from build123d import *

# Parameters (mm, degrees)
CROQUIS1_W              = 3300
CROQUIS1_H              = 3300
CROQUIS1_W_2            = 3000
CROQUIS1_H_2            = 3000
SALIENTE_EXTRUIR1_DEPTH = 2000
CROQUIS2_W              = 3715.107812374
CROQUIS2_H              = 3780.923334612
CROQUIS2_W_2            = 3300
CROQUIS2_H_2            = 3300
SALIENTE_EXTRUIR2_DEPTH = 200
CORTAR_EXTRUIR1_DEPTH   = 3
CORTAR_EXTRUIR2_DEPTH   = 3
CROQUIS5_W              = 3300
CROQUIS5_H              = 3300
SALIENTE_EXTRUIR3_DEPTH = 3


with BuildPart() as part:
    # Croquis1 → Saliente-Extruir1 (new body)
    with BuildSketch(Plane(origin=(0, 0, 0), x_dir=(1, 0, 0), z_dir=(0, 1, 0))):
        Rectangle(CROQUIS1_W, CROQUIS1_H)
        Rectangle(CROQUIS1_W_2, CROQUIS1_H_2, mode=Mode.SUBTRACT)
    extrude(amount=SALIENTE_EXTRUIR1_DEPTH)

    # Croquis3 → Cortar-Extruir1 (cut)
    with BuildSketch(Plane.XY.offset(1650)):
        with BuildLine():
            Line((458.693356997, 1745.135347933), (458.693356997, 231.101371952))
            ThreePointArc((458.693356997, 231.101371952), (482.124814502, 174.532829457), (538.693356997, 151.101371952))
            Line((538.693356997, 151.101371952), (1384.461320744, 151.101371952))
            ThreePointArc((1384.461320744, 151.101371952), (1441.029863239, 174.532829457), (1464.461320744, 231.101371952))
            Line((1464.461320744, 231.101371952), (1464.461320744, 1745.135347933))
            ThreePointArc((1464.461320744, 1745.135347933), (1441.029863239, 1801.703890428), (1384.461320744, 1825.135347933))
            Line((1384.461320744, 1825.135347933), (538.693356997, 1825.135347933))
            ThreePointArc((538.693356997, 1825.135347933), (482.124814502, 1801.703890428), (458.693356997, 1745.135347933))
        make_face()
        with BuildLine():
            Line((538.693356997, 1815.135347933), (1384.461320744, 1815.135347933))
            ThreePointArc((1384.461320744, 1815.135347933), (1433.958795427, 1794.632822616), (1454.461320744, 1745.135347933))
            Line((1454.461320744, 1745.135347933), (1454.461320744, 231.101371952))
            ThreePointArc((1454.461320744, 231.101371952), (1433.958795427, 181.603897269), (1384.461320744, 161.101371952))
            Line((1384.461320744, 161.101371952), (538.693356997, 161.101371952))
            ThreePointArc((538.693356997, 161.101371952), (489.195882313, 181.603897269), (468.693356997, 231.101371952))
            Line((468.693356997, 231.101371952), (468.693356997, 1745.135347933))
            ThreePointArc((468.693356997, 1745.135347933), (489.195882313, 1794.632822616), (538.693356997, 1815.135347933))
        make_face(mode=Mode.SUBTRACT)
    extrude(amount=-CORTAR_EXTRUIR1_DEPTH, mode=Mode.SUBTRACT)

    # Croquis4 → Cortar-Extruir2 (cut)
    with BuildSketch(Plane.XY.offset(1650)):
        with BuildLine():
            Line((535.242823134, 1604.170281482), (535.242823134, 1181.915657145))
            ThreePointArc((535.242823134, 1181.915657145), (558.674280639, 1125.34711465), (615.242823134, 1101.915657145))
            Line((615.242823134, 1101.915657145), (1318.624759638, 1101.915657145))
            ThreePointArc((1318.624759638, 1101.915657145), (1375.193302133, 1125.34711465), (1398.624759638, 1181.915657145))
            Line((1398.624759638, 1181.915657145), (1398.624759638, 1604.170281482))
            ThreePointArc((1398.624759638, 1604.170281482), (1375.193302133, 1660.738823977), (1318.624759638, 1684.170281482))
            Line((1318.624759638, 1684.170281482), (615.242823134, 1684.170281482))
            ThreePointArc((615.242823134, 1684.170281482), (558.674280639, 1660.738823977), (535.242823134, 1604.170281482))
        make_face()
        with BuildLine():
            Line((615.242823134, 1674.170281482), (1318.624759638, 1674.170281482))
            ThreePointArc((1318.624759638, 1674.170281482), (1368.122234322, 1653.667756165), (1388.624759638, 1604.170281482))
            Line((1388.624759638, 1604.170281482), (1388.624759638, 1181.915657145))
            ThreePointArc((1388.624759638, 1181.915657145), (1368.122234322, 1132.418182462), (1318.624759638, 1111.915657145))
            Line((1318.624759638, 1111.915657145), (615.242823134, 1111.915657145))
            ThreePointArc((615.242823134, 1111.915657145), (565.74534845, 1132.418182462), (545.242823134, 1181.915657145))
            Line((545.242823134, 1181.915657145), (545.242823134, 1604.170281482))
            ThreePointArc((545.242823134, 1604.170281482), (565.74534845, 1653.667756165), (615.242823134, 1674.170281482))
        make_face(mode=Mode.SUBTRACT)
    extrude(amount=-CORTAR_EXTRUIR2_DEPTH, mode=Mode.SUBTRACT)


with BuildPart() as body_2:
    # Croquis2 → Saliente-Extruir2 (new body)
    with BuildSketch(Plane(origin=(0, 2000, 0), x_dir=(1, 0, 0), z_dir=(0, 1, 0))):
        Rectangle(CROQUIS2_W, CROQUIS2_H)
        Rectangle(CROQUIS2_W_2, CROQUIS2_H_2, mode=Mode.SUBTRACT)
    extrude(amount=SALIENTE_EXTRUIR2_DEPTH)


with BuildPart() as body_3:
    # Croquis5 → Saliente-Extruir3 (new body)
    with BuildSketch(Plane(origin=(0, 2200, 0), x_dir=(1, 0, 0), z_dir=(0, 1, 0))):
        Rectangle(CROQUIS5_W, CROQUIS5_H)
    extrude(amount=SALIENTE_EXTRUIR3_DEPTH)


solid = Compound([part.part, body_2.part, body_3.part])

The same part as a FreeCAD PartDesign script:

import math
import FreeCAD as App
import Part
import Sketcher
from FreeCAD import Vector
Q = App.Units.Quantity

doc = App.newDocument("Part")
body = doc.addObject("PartDesign::Body", "Body")

# Sketch on XZ plane
sketch1 = doc.addObject("Sketcher::SketchObject", "Sketch")
body.addObject(sketch1)
sketch1.AttachmentSupport = (doc.XZ_Plane, [""])
sketch1.MapMode = "FlatFace"
sketch1.addGeometry(Part.LineSegment(Vector(-1650, -1650, 0), Vector(-1650, 1650, 0)), False)
sketch1.addGeometry(Part.LineSegment(Vector(-1650, 1650, 0), Vector(1650, 1650, 0)), False)
sketch1.addGeometry(Part.LineSegment(Vector(1650, 1650, 0), Vector(1650, -1650, 0)), False)
sketch1.addGeometry(Part.LineSegment(Vector(1650, -1650, 0), Vector(-1650, -1650, 0)), False)
sketch1.addGeometry(Part.LineSegment(Vector(1500, 1500, 0), Vector(-1500, 1500, 0)), False)
sketch1.addGeometry(Part.LineSegment(Vector(-1500, 1500, 0), Vector(-1500, -1500, 0)), False)
sketch1.addGeometry(Part.LineSegment(Vector(-1500, -1500, 0), Vector(1500, -1500, 0)), False)
sketch1.addGeometry(Part.LineSegment(Vector(1500, -1500, 0), Vector(1500, 1500, 0)), False)
sketch1.addConstraint(Sketcher.Constraint("Coincident", 0, 2, 1, 1))
sketch1.addConstraint(Sketcher.Constraint("Coincident", 1, 2, 2, 1))
sketch1.addConstraint(Sketcher.Constraint("Coincident", 2, 2, 3, 1))
sketch1.addConstraint(Sketcher.Constraint("Coincident", 3, 2, 0, 1))
sketch1.addConstraint(Sketcher.Constraint("Coincident", 4, 2, 5, 1))
sketch1.addConstraint(Sketcher.Constraint("Coincident", 5, 2, 6, 1))
sketch1.addConstraint(Sketcher.Constraint("Coincident", 6, 2, 7, 1))
sketch1.addConstraint(Sketcher.Constraint("Coincident", 7, 2, 4, 1))
sketch1.addConstraint(Sketcher.Constraint("Vertical", 0))
sketch1.addConstraint(Sketcher.Constraint("Horizontal", 1))
sketch1.addConstraint(Sketcher.Constraint("Vertical", 2))
sketch1.addConstraint(Sketcher.Constraint("Horizontal", 3))
sketch1.addConstraint(Sketcher.Constraint("Horizontal", 4))
sketch1.addConstraint(Sketcher.Constraint("Vertical", 5))
sketch1.addConstraint(Sketcher.Constraint("Horizontal", 6))
sketch1.addConstraint(Sketcher.Constraint("Vertical", 7))
sketch1.addConstraint(Sketcher.Constraint("Symmetric", 0, 2, 2, 2, -1, 1))
sketch1.addConstraint(Sketcher.Constraint("Symmetric", 4, 2, 6, 2, -1, 1))
sketch1.addConstraint(Sketcher.Constraint("Equal", 3, 0))
sketch1.addConstraint(Sketcher.Constraint("Equal", 6, 5))
sketch1.addConstraint(Sketcher.Constraint("DistanceX", 1, 1, 1, 2, Q("3300 mm")))
sketch1.addConstraint(Sketcher.Constraint("DistanceX", 4, 2, 4, 1, Q("3000 mm")))
pad1 = doc.addObject("PartDesign::Pad", "Pad")
body.addObject(pad1)
pad1.Profile = sketch1
pad1.Length = 2000
pad1.Reversed = True

# Sketch on XY plane
sketch2 = doc.addObject("Sketcher::SketchObject", "Sketch001")
body.addObject(sketch2)
sketch2.AttachmentSupport = (doc.XY_Plane, [""])
sketch2.MapMode = "FlatFace"
sketch2.AttachmentOffset = App.Placement(Vector(0, 0, 1650), App.Rotation())
sketch2.addGeometry(Part.LineSegment(Vector(459, 1745, 0), Vector(459, 231, 0)), False)
sketch2.addGeometry(Part.ArcOfCircle(Part.Circle(Vector(539, 231, 0), Vector(0, 0, 1), 80), math.radians(180), math.radians(270)), False)
sketch2.addGeometry(Part.LineSegment(Vector(539, 151, 0), Vector(1384, 151, 0)), False)
sketch2.addGeometry(Part.ArcOfCircle(Part.Circle(Vector(1384, 231, 0), Vector(0, 0, 1), 80), math.radians(-90), math.radians(0)), False)
sketch2.addGeometry(Part.LineSegment(Vector(1464, 231, 0), Vector(1464, 1745, 0)), False)
sketch2.addGeometry(Part.ArcOfCircle(Part.Circle(Vector(1384, 1745, 0), Vector(0, 0, 1), 80), math.radians(0), math.radians(90)), False)
sketch2.addGeometry(Part.LineSegment(Vector(1384, 1825, 0), Vector(539, 1825, 0)), False)
sketch2.addGeometry(Part.ArcOfCircle(Part.Circle(Vector(539, 1745, 0), Vector(0, 0, 1), 80), math.radians(90), math.radians(180)), False)
sketch2.addGeometry(Part.ArcOfCircle(Part.Circle(Vector(539, 1745, 0), Vector(0, 0, 1), 70), math.radians(90), math.radians(180)), False)
sketch2.addGeometry(Part.LineSegment(Vector(539, 1815, 0), Vector(1384, 1815, 0)), False)
sketch2.addGeometry(Part.ArcOfCircle(Part.Circle(Vector(1384, 1745, 0), Vector(0, 0, 1), 70), math.radians(0), math.radians(90)), False)
sketch2.addGeometry(Part.LineSegment(Vector(1454, 1745, 0), Vector(1454, 231, 0)), False)
sketch2.addGeometry(Part.ArcOfCircle(Part.Circle(Vector(1384, 231, 0), Vector(0, 0, 1), 70), math.radians(-90), math.radians(0)), False)
sketch2.addGeometry(Part.LineSegment(Vector(1384, 161, 0), Vector(539, 161, 0)), False)
sketch2.addGeometry(Part.ArcOfCircle(Part.Circle(Vector(539, 231, 0), Vector(0, 0, 1), 70), math.radians(180), math.radians(270)), False)
sketch2.addGeometry(Part.LineSegment(Vector(469, 231, 0), Vector(469, 1745, 0)), False)
sketch2.addConstraint(Sketcher.Constraint("Tangent", 0, 2, 1, 1))
sketch2.addConstraint(Sketcher.Constraint("Tangent", 1, 2, 2, 1))
sketch2.addConstraint(Sketcher.Constraint("Tangent", 2, 2, 3, 1))
sketch2.addConstraint(Sketcher.Constraint("Tangent", 3, 2, 4, 1))
sketch2.addConstraint(Sketcher.Constraint("Tangent", 4, 2, 5, 1))
sketch2.addConstraint(Sketcher.Constraint("Tangent", 5, 2, 6, 1))
sketch2.addConstraint(Sketcher.Constraint("Tangent", 6, 2, 7, 1))
sketch2.addConstraint(Sketcher.Constraint("Tangent", 7, 2, 0, 1))
sketch2.addConstraint(Sketcher.Constraint("Tangent", 8, 1, 9, 1))
sketch2.addConstraint(Sketcher.Constraint("Tangent", 9, 2, 10, 2))
sketch2.addConstraint(Sketcher.Constraint("Tangent", 10, 1, 11, 1))
sketch2.addConstraint(Sketcher.Constraint("Tangent", 11, 2, 12, 2))
sketch2.addConstraint(Sketcher.Constraint("Tangent", 12, 1, 13, 1))
sketch2.addConstraint(Sketcher.Constraint("Tangent", 13, 2, 14, 2))
sketch2.addConstraint(Sketcher.Constraint("Tangent", 14, 1, 15, 1))
sketch2.addConstraint(Sketcher.Constraint("Tangent", 15, 2, 8, 2))
sketch2.addConstraint(Sketcher.Constraint("Vertical", 0))
sketch2.addConstraint(Sketcher.Constraint("Horizontal", 2))
sketch2.addConstraint(Sketcher.Constraint("Vertical", 4))
sketch2.addConstraint(Sketcher.Constraint("Horizontal", 6))
sketch2.addConstraint(Sketcher.Constraint("Horizontal", 9))
sketch2.addConstraint(Sketcher.Constraint("Vertical", 11))
sketch2.addConstraint(Sketcher.Constraint("Horizontal", 13))
sketch2.addConstraint(Sketcher.Constraint("Vertical", 15))
sketch2.addConstraint(Sketcher.Constraint("Coincident", 8, 3, 7, 3))
sketch2.addConstraint(Sketcher.Constraint("Coincident", 10, 3, 5, 3))
sketch2.addConstraint(Sketcher.Constraint("Coincident", 12, 3, 3, 3))
sketch2.addConstraint(Sketcher.Constraint("Equal", 1, 3))
sketch2.addConstraint(Sketcher.Constraint("Equal", 3, 5))
sketch2.addConstraint(Sketcher.Constraint("Equal", 5, 7))
sketch2.addConstraint(Sketcher.Constraint("Equal", 12, 14))
sketch2.addConstraint(Sketcher.Constraint("Radius", 1, Q("80 mm")))
sketch2.addConstraint(Sketcher.Constraint("Radius", 8, Q("70 mm")))
sketch2.addConstraint(Sketcher.Constraint("DistanceX", 2, 1, 2, 2, Q("845.767964 mm")))
sketch2.addConstraint(Sketcher.Constraint("DistanceY", 0, 2, 0, 1, Q("1514.033976 mm")))
sketch2.addConstraint(Sketcher.Constraint("DistanceY", -1, 1, 1, 3, Q("231.101372 mm")))
sketch2.addConstraint(Sketcher.Constraint("DistanceX", -1, 1, 3, 3, Q("1384.461321 mm")))
pocket1 = doc.addObject("PartDesign::Pocket", "Pocket")
body.addObject(pocket1)
pocket1.Profile = sketch2
pocket1.Length = 3

# Sketch on XY plane
sketch3 = doc.addObject("Sketcher::SketchObject", "Sketch002")
body.addObject(sketch3)
sketch3.AttachmentSupport = (doc.XY_Plane, [""])
sketch3.MapMode = "FlatFace"
sketch3.AttachmentOffset = App.Placement(Vector(0, 0, 1650), App.Rotation())
sketch3.addGeometry(Part.LineSegment(Vector(535, 1604, 0), Vector(535, 1182, 0)), False)
sketch3.addGeometry(Part.ArcOfCircle(Part.Circle(Vector(615, 1182, 0), Vector(0, 0, 1), 80), math.radians(180), math.radians(270)), False)
sketch3.addGeometry(Part.LineSegment(Vector(615, 1102, 0), Vector(1319, 1102, 0)), False)
sketch3.addGeometry(Part.ArcOfCircle(Part.Circle(Vector(1319, 1182, 0), Vector(0, 0, 1), 80), math.radians(-90), math.radians(0)), False)
sketch3.addGeometry(Part.LineSegment(Vector(1399, 1182, 0), Vector(1399, 1604, 0)), False)
sketch3.addGeometry(Part.ArcOfCircle(Part.Circle(Vector(1319, 1604, 0), Vector(0, 0, 1), 80), math.radians(0), math.radians(90)), False)
sketch3.addGeometry(Part.LineSegment(Vector(1319, 1684, 0), Vector(615, 1684, 0)), False)
sketch3.addGeometry(Part.ArcOfCircle(Part.Circle(Vector(615, 1604, 0), Vector(0, 0, 1), 80), math.radians(90), math.radians(180)), False)
sketch3.addGeometry(Part.ArcOfCircle(Part.Circle(Vector(615, 1604, 0), Vector(0, 0, 1), 70), math.radians(90), math.radians(180)), False)
sketch3.addGeometry(Part.LineSegment(Vector(615, 1674, 0), Vector(1319, 1674, 0)), False)
sketch3.addGeometry(Part.ArcOfCircle(Part.Circle(Vector(1319, 1604, 0), Vector(0, 0, 1), 70), math.radians(0), math.radians(90)), False)
sketch3.addGeometry(Part.LineSegment(Vector(1389, 1604, 0), Vector(1389, 1182, 0)), False)
sketch3.addGeometry(Part.ArcOfCircle(Part.Circle(Vector(1319, 1182, 0), Vector(0, 0, 1), 70), math.radians(-90), math.radians(0)), False)
sketch3.addGeometry(Part.LineSegment(Vector(1319, 1112, 0), Vector(615, 1112, 0)), False)
sketch3.addGeometry(Part.ArcOfCircle(Part.Circle(Vector(615, 1182, 0), Vector(0, 0, 1), 70), math.radians(180), math.radians(270)), False)
sketch3.addGeometry(Part.LineSegment(Vector(545, 1182, 0), Vector(545, 1604, 0)), False)
sketch3.addConstraint(Sketcher.Constraint("Tangent", 0, 2, 1, 1))
sketch3.addConstraint(Sketcher.Constraint("Tangent", 1, 2, 2, 1))
sketch3.addConstraint(Sketcher.Constraint("Tangent", 2, 2, 3, 1))
sketch3.addConstraint(Sketcher.Constraint("Tangent", 3, 2, 4, 1))
sketch3.addConstraint(Sketcher.Constraint("Tangent", 4, 2, 5, 1))
sketch3.addConstraint(Sketcher.Constraint("Tangent", 5, 2, 6, 1))
sketch3.addConstraint(Sketcher.Constraint("Tangent", 6, 2, 7, 1))
sketch3.addConstraint(Sketcher.Constraint("Tangent", 7, 2, 0, 1))
sketch3.addConstraint(Sketcher.Constraint("Tangent", 8, 1, 9, 1))
sketch3.addConstraint(Sketcher.Constraint("Tangent", 9, 2, 10, 2))
sketch3.addConstraint(Sketcher.Constraint("Tangent", 10, 1, 11, 1))
sketch3.addConstraint(Sketcher.Constraint("Tangent", 11, 2, 12, 2))
sketch3.addConstraint(Sketcher.Constraint("Tangent", 12, 1, 13, 1))
sketch3.addConstraint(Sketcher.Constraint("Tangent", 13, 2, 14, 2))
sketch3.addConstraint(Sketcher.Constraint("Tangent", 14, 1, 15, 1))
sketch3.addConstraint(Sketcher.Constraint("Tangent", 15, 2, 8, 2))
sketch3.addConstraint(Sketcher.Constraint("Vertical", 0))
sketch3.addConstraint(Sketcher.Constraint("Horizontal", 2))
sketch3.addConstraint(Sketcher.Constraint("Vertical", 4))
sketch3.addConstraint(Sketcher.Constraint("Horizontal", 6))
sketch3.addConstraint(Sketcher.Constraint("Horizontal", 9))
sketch3.addConstraint(Sketcher.Constraint("Vertical", 11))
sketch3.addConstraint(Sketcher.Constraint("Horizontal", 13))
sketch3.addConstraint(Sketcher.Constraint("Vertical", 15))
sketch3.addConstraint(Sketcher.Constraint("Coincident", 8, 3, 7, 3))
sketch3.addConstraint(Sketcher.Constraint("Coincident", 10, 3, 5, 3))
sketch3.addConstraint(Sketcher.Constraint("Coincident", 12, 3, 3, 3))
sketch3.addConstraint(Sketcher.Constraint("Equal", 1, 3))
sketch3.addConstraint(Sketcher.Constraint("Equal", 3, 5))
sketch3.addConstraint(Sketcher.Constraint("Equal", 5, 7))
sketch3.addConstraint(Sketcher.Constraint("Equal", 12, 14))
sketch3.addConstraint(Sketcher.Constraint("Radius", 1, Q("80 mm")))
sketch3.addConstraint(Sketcher.Constraint("Radius", 8, Q("70 mm")))
sketch3.addConstraint(Sketcher.Constraint("DistanceX", 2, 1, 2, 2, Q("703.381937 mm")))
sketch3.addConstraint(Sketcher.Constraint("DistanceY", 0, 2, 0, 1, Q("422.254624 mm")))
sketch3.addConstraint(Sketcher.Constraint("DistanceX", -1, 1, 3, 3, Q("1318.62476 mm")))
sketch3.addConstraint(Sketcher.Constraint("DistanceY", -1, 1, 5, 3, Q("1604.170281 mm")))
pocket2 = doc.addObject("PartDesign::Pocket", "Pocket001")
body.addObject(pocket2)
pocket2.Profile = sketch3
pocket2.Length = 3
body2 = doc.addObject("PartDesign::Body", "Body001")

# Sketch on XZ plane
sketch4 = doc.addObject("Sketcher::SketchObject", "Sketch003")
body2.addObject(sketch4)
sketch4.AttachmentSupport = (doc.getObject("XZ_Plane001"), [""])
sketch4.MapMode = "FlatFace"
sketch4.AttachmentOffset = App.Placement(Vector(0, 0, -2000), App.Rotation())
sketch4.addGeometry(Part.LineSegment(Vector(-1858, -1890, 0), Vector(-1858, 1890, 0)), False)
sketch4.addGeometry(Part.LineSegment(Vector(-1858, 1890, 0), Vector(1858, 1890, 0)), False)
sketch4.addGeometry(Part.LineSegment(Vector(1858, 1890, 0), Vector(1858, -1890, 0)), False)
sketch4.addGeometry(Part.LineSegment(Vector(1858, -1890, 0), Vector(-1858, -1890, 0)), False)
sketch4.addGeometry(Part.LineSegment(Vector(1650, 1650, 0), Vector(-1650, 1650, 0)), False)
sketch4.addGeometry(Part.LineSegment(Vector(-1650, 1650, 0), Vector(-1650, -1650, 0)), False)
sketch4.addGeometry(Part.LineSegment(Vector(-1650, -1650, 0), Vector(1650, -1650, 0)), False)
sketch4.addGeometry(Part.LineSegment(Vector(1650, -1650, 0), Vector(1650, 1650, 0)), False)
sketch4.addConstraint(Sketcher.Constraint("Coincident", 0, 2, 1, 1))
sketch4.addConstraint(Sketcher.Constraint("Coincident", 1, 2, 2, 1))
sketch4.addConstraint(Sketcher.Constraint("Coincident", 2, 2, 3, 1))
sketch4.addConstraint(Sketcher.Constraint("Coincident", 3, 2, 0, 1))
sketch4.addConstraint(Sketcher.Constraint("Coincident", 4, 2, 5, 1))
sketch4.addConstraint(Sketcher.Constraint("Coincident", 5, 2, 6, 1))
sketch4.addConstraint(Sketcher.Constraint("Coincident", 6, 2, 7, 1))
sketch4.addConstraint(Sketcher.Constraint("Coincident", 7, 2, 4, 1))
sketch4.addConstraint(Sketcher.Constraint("Vertical", 0))
sketch4.addConstraint(Sketcher.Constraint("Horizontal", 1))
sketch4.addConstraint(Sketcher.Constraint("Vertical", 2))
sketch4.addConstraint(Sketcher.Constraint("Horizontal", 3))
sketch4.addConstraint(Sketcher.Constraint("Horizontal", 4))
sketch4.addConstraint(Sketcher.Constraint("Vertical", 5))
sketch4.addConstraint(Sketcher.Constraint("Horizontal", 6))
sketch4.addConstraint(Sketcher.Constraint("Vertical", 7))
sketch4.addConstraint(Sketcher.Constraint("Symmetric", 0, 2, 2, 2, -1, 1))
sketch4.addConstraint(Sketcher.Constraint("Symmetric", 4, 2, 6, 2, -1, 1))
sketch4.addConstraint(Sketcher.Constraint("Equal", 6, 5))
sketch4.addConstraint(Sketcher.Constraint("DistanceX", 4, 2, 4, 1, Q("3300 mm")))
sketch4.addConstraint(Sketcher.Constraint("DistanceX", 1, 1, 1, 2, Q("3715.107812 mm")))
sketch4.addConstraint(Sketcher.Constraint("DistanceY", 0, 1, 0, 2, Q("3780.923335 mm")))
pad2 = doc.addObject("PartDesign::Pad", "Pad001")
body2.addObject(pad2)
pad2.Profile = sketch4
pad2.Length = 200
pad2.Reversed = True
body3 = doc.addObject("PartDesign::Body", "Body002")

# Sketch on XZ plane
sketch5 = doc.addObject("Sketcher::SketchObject", "Sketch004")
body3.addObject(sketch5)
sketch5.AttachmentSupport = (doc.getObject("XZ_Plane002"), [""])
sketch5.MapMode = "FlatFace"
sketch5.AttachmentOffset = App.Placement(Vector(0, 0, -2200), App.Rotation())
sketch5.addGeometry(Part.LineSegment(Vector(-1650, -1650, 0), Vector(-1650, 1650, 0)), False)
sketch5.addGeometry(Part.LineSegment(Vector(-1650, 1650, 0), Vector(1650, 1650, 0)), False)
sketch5.addGeometry(Part.LineSegment(Vector(1650, 1650, 0), Vector(1650, -1650, 0)), False)
sketch5.addGeometry(Part.LineSegment(Vector(1650, -1650, 0), Vector(-1650, -1650, 0)), False)
sketch5.addConstraint(Sketcher.Constraint("Coincident", 0, 2, 1, 1))
sketch5.addConstraint(Sketcher.Constraint("Coincident", 1, 2, 2, 1))
sketch5.addConstraint(Sketcher.Constraint("Coincident", 2, 2, 3, 1))
sketch5.addConstraint(Sketcher.Constraint("Coincident", 3, 2, 0, 1))
sketch5.addConstraint(Sketcher.Constraint("Vertical", 0))
sketch5.addConstraint(Sketcher.Constraint("Horizontal", 1))
sketch5.addConstraint(Sketcher.Constraint("Vertical", 2))
sketch5.addConstraint(Sketcher.Constraint("Horizontal", 3))
sketch5.addConstraint(Sketcher.Constraint("Symmetric", 0, 2, 2, 2, -1, 1))
sketch5.addConstraint(Sketcher.Constraint("Equal", 3, 0))
sketch5.addConstraint(Sketcher.Constraint("DistanceX", 1, 1, 1, 2, Q("3300 mm")))
pad3 = doc.addObject("PartDesign::Pad", "Pad002")
body3.addObject(pad3)
pad3.Profile = sketch5
pad3.Length = 3
pad3.Reversed = True

doc.recompute()
